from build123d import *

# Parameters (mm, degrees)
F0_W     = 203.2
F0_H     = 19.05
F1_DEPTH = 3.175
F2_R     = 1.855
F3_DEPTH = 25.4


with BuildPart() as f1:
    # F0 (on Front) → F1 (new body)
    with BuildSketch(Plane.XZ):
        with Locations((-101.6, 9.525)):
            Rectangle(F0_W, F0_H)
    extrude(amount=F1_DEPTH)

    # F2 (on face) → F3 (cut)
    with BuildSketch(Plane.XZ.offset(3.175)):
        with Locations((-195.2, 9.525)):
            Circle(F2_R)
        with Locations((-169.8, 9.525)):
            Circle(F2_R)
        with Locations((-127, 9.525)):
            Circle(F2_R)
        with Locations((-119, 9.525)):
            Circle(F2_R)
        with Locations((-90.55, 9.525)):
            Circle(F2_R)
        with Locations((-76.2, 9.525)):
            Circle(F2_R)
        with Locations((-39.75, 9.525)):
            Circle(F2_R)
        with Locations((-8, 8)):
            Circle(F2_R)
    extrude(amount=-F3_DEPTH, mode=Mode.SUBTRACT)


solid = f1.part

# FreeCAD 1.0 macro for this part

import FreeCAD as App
import Part
import Sketcher

V = App.Vector
Q = App.Units.Quantity


def add_polygon(sketch, points):
    """Adds a closed chain of lines whose ends are joined by coincident constraints."""
    first, n = sketch.GeometryCount, len(points)
    for a, b in zip(points, points[1:] + points[:1]):
        sketch.addGeometry(Part.LineSegment(App.Vector(*a, 0), App.Vector(*b, 0)), False)
    for i in range(n):
        sketch.addConstraint(Sketcher.Constraint("Coincident", first + i, 2, first + (i + 1) % n, 1))

doc = App.newDocument("Part")
body = doc.addObject("PartDesign::Body", "Body")

sketch1 = body.newObject("Sketcher::SketchObject", "Sketch")
sketch1.AttachmentSupport = (doc.getObject("XZ_Plane"), [""])
sketch1.MapMode = "FlatFace"
add_polygon(sketch1, [(-203, 19), (-203, 0), (0, 0), (0, 19)])
sketch1.addConstraint(Sketcher.Constraint("Vertical", 0))
sketch1.addConstraint(Sketcher.Constraint("Horizontal", 1))
sketch1.addConstraint(Sketcher.Constraint("Vertical", 2))
sketch1.addConstraint(Sketcher.Constraint("Horizontal", 3))
sketch1.addConstraint(Sketcher.Constraint("Coincident", 1, 2, -1, 1))
sketch1.addConstraint(Sketcher.Constraint("DistanceX", 1, 1, 1, 2, Q("8 in")))
sketch1.addConstraint(Sketcher.Constraint("DistanceY", 0, 2, 0, 1, Q("0.75 in")))
pad1 = body.newObject("PartDesign::Pad", "Pad")
pad1.Profile = sketch1
pad1.Length = Q("0.125 in")

sketch2 = body.newObject("Sketcher::SketchObject", "Sketch001")
sketch2.AttachmentSupport = (doc.getObject("XZ_Plane"), [""])
sketch2.MapMode = "FlatFace"
sketch2.AttachmentOffset = App.Placement(V(0, 0, 0.125 * 25.4), App.Rotation())
sketch2.addGeometry(Part.Circle(V(-195.2, 9.5, 0), V(0, 0, 1), 1.9), False)
sketch2.addGeometry(Part.Circle(V(-169.8, 9.5, 0), V(0, 0, 1), 1.9), False)
sketch2.addGeometry(Part.Circle(V(-127, 9.5, 0), V(0, 0, 1), 1.9), False)
sketch2.addGeometry(Part.Circle(V(-119, 9.5, 0), V(0, 0, 1), 1.9), False)
sketch2.addGeometry(Part.Circle(V(-90.5, 9.5, 0), V(0, 0, 1), 1.9), False)
sketch2.addGeometry(Part.Circle(V(-76.2, 9.5, 0), V(0, 0, 1), 1.9), False)
sketch2.addGeometry(Part.Circle(V(-39.8, 9.5, 0), V(0, 0, 1), 1.9), False)
sketch2.addGeometry(Part.Circle(V(-8, 8, 0), V(0, 0, 1), 1.9), False)
sketch2.addConstraint(Sketcher.Constraint("Equal", 0, 1))
sketch2.addConstraint(Sketcher.Constraint("Equal", 1, 2))
sketch2.addConstraint(Sketcher.Constraint("Equal", 2, 3))
sketch2.addConstraint(Sketcher.Constraint("Equal", 3, 4))
sketch2.addConstraint(Sketcher.Constraint("Equal", 4, 5))
sketch2.addConstraint(Sketcher.Constraint("Equal", 5, 6))
sketch2.addConstraint(Sketcher.Constraint("Equal", 6, 7))
sketch2.addConstraint(Sketcher.Constraint("Horizontal", 0, 3, 1, 3))
sketch2.addConstraint(Sketcher.Constraint("Horizontal", 1, 3, 2, 3))
sketch2.addConstraint(Sketcher.Constraint("Horizontal", 2, 3, 3, 3))
sketch2.addConstraint(Sketcher.Constraint("Horizontal", 3, 3, 4, 3))
sketch2.addConstraint(Sketcher.Constraint("Horizontal", 4, 3, 5, 3))
sketch2.addConstraint(Sketcher.Constraint("Horizontal", 5, 3, 6, 3))
sketch2.addConstraint(Sketcher.Constraint("DistanceX", 2, 3, -1, 1, Q("5 in")))
sketch2.addConstraint(Sketcher.Constraint("DistanceX", 5, 3, -1, 1, Q("3 in")))
sketch2.addConstraint(Sketcher.Constraint("DistanceX", 0, 3, 1, 3, Q("1 in")))
sketch2.addConstraint(Sketcher.Constraint("DistanceX", 1, 3, 3, 3, Q("2 in")))
sketch2.addConstraint(Sketcher.Constraint("DistanceX", 4, 3, 6, 3, Q("2 in")))
sketch2.addConstraint(Sketcher.Constraint("Diameter", 0, 3.71))
sketch2.addConstraint(Sketcher.Constraint("DistanceX", 6, 3, 7, 3, Q("1.25 in")))
sketch2.addConstraint(Sketcher.Constraint("DistanceY", -1, 1, 0, 3, Q("0.375 in")))
sketch2.addConstraint(Sketcher.Constraint("DistanceX", 0, 3, -1, 1, 195.2))
sketch2.addConstraint(Sketcher.Constraint("DistanceX", 4, 3, -1, 1, 90.55))
sketch2.addConstraint(Sketcher.Constraint("DistanceY", -1, 1, 7, 3, 8.0))
pocket1 = body.newObject("PartDesign::Pocket", "Pocket")
pocket1.Profile = sketch2
pocket1.Length = Q("1 in")

doc.recompute()
